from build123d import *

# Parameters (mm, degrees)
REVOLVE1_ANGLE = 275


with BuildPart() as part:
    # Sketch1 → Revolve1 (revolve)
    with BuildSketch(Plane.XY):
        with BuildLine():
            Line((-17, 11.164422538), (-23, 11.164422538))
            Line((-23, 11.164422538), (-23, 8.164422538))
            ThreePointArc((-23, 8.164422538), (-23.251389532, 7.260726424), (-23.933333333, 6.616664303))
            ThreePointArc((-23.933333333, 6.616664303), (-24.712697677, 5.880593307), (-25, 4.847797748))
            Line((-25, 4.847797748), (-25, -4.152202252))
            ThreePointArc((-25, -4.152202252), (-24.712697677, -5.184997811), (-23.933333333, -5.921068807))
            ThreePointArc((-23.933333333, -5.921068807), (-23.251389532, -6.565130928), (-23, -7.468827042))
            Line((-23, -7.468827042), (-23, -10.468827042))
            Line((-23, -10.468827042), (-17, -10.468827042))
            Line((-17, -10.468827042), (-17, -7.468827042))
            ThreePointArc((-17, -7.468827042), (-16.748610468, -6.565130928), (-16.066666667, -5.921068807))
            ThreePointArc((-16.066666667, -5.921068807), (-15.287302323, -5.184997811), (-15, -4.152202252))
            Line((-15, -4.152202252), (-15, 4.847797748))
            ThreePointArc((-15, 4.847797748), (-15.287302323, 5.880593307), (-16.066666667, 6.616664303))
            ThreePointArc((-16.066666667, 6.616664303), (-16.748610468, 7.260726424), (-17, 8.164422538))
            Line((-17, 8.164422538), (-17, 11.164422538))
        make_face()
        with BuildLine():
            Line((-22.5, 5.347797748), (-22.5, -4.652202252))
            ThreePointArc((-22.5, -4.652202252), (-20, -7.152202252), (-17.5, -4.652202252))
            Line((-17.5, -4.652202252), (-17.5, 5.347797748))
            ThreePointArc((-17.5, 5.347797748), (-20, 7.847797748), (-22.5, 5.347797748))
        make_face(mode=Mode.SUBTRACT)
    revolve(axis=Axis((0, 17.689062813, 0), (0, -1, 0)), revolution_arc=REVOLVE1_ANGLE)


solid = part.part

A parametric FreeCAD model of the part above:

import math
import FreeCAD as App
import Part
import Sketcher
from FreeCAD import Vector
Q = App.Units.Quantity

doc = App.newDocument("Part")
params = doc.addObject("Spreadsheet::Sheet", "Params")
for row, (alias, value) in enumerate([
    ("sketch1_radius", "2 mm"),
    ("sketch1_radius2", "2.5 mm"),
    ("sketch1_width", "6 mm"),
    ("sketch1_height", "3 mm"),
    ("sketch1_height2", "9 mm"),
    ("revolution_angle", "275 deg"),
], start=1):
    params.set(f"A{row}", alias)
    params.set(f"B{row}", "=" + value)
    params.setAlias(f"B{row}", alias)

body = doc.addObject("PartDesign::Body", "Body")

sketch1 = doc.addObject("Sketcher::SketchObject", "Sketch")
body.addObject(sketch1)
sketch1.AttachmentSupport = (doc.XY_Plane, [""])
sketch1.MapMode = "FlatFace"
sketch1.addGeometry([
    Part.LineSegment(Vector(-17, 11.164423, 0), Vector(-23, 11.164423, 0)),
    Part.LineSegment(Vector(-23, 11.164423, 0), Vector(-23, 8.164423, 0)),
    Part.ArcOfCircle(Part.Circle(Vector(-24.75, 8.164423, 0), Vector(0, 0, 1), 1.75), math.radians(-62.181861), math.radians(0)),
    Part.ArcOfCircle(Part.Circle(Vector(-23, 4.847798, 0), Vector(0, 0, 1), 2), math.radians(117.818139), math.radians(180)),
    Part.LineSegment(Vector(-25, 4.847798, 0), Vector(-25, -4.152202, 0)),
    Part.ArcOfCircle(Part.Circle(Vector(-23, -4.152202, 0), Vector(0, 0, 1), 2), math.radians(180), math.radians(242.181861)),
    Part.ArcOfCircle(Part.Circle(Vector(-24.75, -7.468827, 0), Vector(0, 0, 1), 1.75), math.radians(0), math.radians(62.181861)),
    Part.LineSegment(Vector(-23, -7.468827, 0), Vector(-23, -10.468827, 0)),
    Part.LineSegment(Vector(-23, -10.468827, 0), Vector(-17, -10.468827, 0)),
    Part.LineSegment(Vector(-17, -10.468827, 0), Vector(-17, -7.468827, 0)),
    Part.ArcOfCircle(Part.Circle(Vector(-15.25, -7.468827, 0), Vector(0, 0, 1), 1.75), math.radians(117.818139), math.radians(180)),
    Part.ArcOfCircle(Part.Circle(Vector(-17, -4.152202, 0), Vector(0, 0, 1), 2), math.radians(-62.181861), math.radians(0)),
    Part.LineSegment(Vector(-15, -4.152202, 0), Vector(-15, 4.847798, 0)),
    Part.ArcOfCircle(Part.Circle(Vector(-17, 4.847798, 0), Vector(0, 0, 1), 2), math.radians(0), math.radians(62.181861)),
    Part.ArcOfCircle(Part.Circle(Vector(-15.25, 8.164423, 0), Vector(0, 0, 1), 1.75), math.radians(180), math.radians(242.181861)),
    Part.LineSegment(Vector(-17, 8.164423, 0), Vector(-17, 11.164423, 0)),
    Part.LineSegment(Vector(-22.5, -4.652202, 0), Vector(-22.5, 5.347798, 0)),
    Part.ArcOfCircle(Part.Circle(Vector(-20, 5.347798, 0), Vector(0, 0, 1), 2.5), math.radians(0), math.radians(180)),
    Part.LineSegment(Vector(-17.5, 5.347798, 0), Vector(-17.5, -4.652202, 0)),
    Part.ArcOfCircle(Part.Circle(Vector(-20, -4.652202, 0), Vector(0, 0, 1), 2.5), math.radians(180), math.radians(360)),
], False)
sketch1.addConstraint([
    Sketcher.Constraint("Coincident", 0, 2, 1, 1),
    Sketcher.Constraint("Tangent", 1, 2, 2, 2),
    Sketcher.Constraint("Tangent", 2, 1, 3, 1),
    Sketcher.Constraint("Tangent", 3, 2, 4, 1),
    Sketcher.Constraint("Tangent", 4, 2, 5, 1),
    Sketcher.Constraint("Tangent", 5, 2, 6, 2),
    Sketcher.Constraint("Tangent", 6, 1, 7, 1),
    Sketcher.Constraint("Coincident", 7, 2, 8, 1),
    Sketcher.Constraint("Coincident", 8, 2, 9, 1),
    Sketcher.Constraint("Tangent", 9, 2, 10, 2),
    Sketcher.Constraint("Tangent", 10, 1, 11, 1),
    Sketcher.Constraint("Tangent", 11, 2, 12, 1),
    Sketcher.Constraint("Tangent", 12, 2, 13, 1),
    Sketcher.Constraint("Tangent", 13, 2, 14, 2),
    Sketcher.Constraint("Tangent", 14, 1, 15, 1),
    Sketcher.Constraint("Coincident", 15, 2, 0, 1),
    Sketcher.Constraint("Tangent", 16, 2, 17, 2),
    Sketcher.Constraint("Tangent", 17, 1, 18, 1),
    Sketcher.Constraint("Tangent", 18, 2, 19, 2),
    Sketcher.Constraint("Tangent", 19, 1, 16, 1),
    Sketcher.Constraint("Horizontal", 0),
    Sketcher.Constraint("Vertical", 1),
    Sketcher.Constraint("Vertical", 4),
    Sketcher.Constraint("Vertical", 7),
    Sketcher.Constraint("Horizontal", 8),
    Sketcher.Constraint("Vertical", 9),
    Sketcher.Constraint("Vertical", 12),
    Sketcher.Constraint("Vertical", 15),
    Sketcher.Constraint("Vertical", 16),
    Sketcher.Constraint("Vertical", 18),
    Sketcher.Constraint("Equal", 3, 5),
    Sketcher.Constraint("Equal", 2, 6),
    Sketcher.Constraint("Equal", 6, 10),
    Sketcher.Constraint("Equal", 5, 11),
    Sketcher.Constraint("Equal", 11, 13),
    Sketcher.Constraint("Equal", 10, 14),
    Sketcher.Constraint("Horizontal", 6, 3, 10, 3),
    Sketcher.Constraint("Horizontal", 5, 3, 11, 3),
    Sketcher.Constraint("Horizontal", 3, 3, 13, 3),
    Sketcher.Constraint("Horizontal", 2, 3, 14, 3),
    Sketcher.Constraint("Vertical", 2, 3, 6, 3),
    Sketcher.Constraint("Vertical", 5, 3, 0, 2),
    Sketcher.Constraint("Equal", 1, 7),
    Sketcher.Constraint("Radius", 3, Q("2 mm")),
    Sketcher.Constraint("Radius", 17, Q("2.5 mm")),
    Sketcher.Constraint("DistanceX", 0, 2, 0, 1, Q("6 mm")),
    Sketcher.Constraint("DistanceY", 1, 2, 1, 1, Q("3 mm")),
    Sketcher.Constraint("DistanceY", 4, 2, 4, 1, Q("9 mm")),
    Sketcher.Constraint("DistanceY", 16, 1, 16, 2, Q("10 mm")),
    Sketcher.Constraint("Radius", 2, Q("1.75 mm")),
    Sketcher.Constraint("DistanceX", 3, 3, -1, 1, Q("23 mm")),
    Sketcher.Constraint("DistanceX", 17, 3, -1, 1, Q("20 mm")),
    Sketcher.Constraint("DistanceY", 3, 3, 17, 3, Q("0.5 mm")),
    Sketcher.Constraint("DistanceY", 5, 2, -1, 1, Q("5.921069 mm")),
])
sketch1.setExpression("Constraints[43]", "Params.sketch1_radius")
sketch1.setExpression("Constraints[44]", "Params.sketch1_radius2")
sketch1.setExpression("Constraints[45]", "Params.sketch1_width")
sketch1.setExpression("Constraints[46]", "Params.sketch1_height")
sketch1.setExpression("Constraints[47]", "Params.sketch1_height2")
revolution = doc.addObject("PartDesign::Revolution", "Revolution")
body.addObject(revolution)
revolution.Profile = sketch1
revolution.ReferenceAxis = (sketch1, ["V_Axis"])
revolution.setExpression("Angle", "Params.revolution_angle")
revolution.Reversed = True

doc.recompute()
